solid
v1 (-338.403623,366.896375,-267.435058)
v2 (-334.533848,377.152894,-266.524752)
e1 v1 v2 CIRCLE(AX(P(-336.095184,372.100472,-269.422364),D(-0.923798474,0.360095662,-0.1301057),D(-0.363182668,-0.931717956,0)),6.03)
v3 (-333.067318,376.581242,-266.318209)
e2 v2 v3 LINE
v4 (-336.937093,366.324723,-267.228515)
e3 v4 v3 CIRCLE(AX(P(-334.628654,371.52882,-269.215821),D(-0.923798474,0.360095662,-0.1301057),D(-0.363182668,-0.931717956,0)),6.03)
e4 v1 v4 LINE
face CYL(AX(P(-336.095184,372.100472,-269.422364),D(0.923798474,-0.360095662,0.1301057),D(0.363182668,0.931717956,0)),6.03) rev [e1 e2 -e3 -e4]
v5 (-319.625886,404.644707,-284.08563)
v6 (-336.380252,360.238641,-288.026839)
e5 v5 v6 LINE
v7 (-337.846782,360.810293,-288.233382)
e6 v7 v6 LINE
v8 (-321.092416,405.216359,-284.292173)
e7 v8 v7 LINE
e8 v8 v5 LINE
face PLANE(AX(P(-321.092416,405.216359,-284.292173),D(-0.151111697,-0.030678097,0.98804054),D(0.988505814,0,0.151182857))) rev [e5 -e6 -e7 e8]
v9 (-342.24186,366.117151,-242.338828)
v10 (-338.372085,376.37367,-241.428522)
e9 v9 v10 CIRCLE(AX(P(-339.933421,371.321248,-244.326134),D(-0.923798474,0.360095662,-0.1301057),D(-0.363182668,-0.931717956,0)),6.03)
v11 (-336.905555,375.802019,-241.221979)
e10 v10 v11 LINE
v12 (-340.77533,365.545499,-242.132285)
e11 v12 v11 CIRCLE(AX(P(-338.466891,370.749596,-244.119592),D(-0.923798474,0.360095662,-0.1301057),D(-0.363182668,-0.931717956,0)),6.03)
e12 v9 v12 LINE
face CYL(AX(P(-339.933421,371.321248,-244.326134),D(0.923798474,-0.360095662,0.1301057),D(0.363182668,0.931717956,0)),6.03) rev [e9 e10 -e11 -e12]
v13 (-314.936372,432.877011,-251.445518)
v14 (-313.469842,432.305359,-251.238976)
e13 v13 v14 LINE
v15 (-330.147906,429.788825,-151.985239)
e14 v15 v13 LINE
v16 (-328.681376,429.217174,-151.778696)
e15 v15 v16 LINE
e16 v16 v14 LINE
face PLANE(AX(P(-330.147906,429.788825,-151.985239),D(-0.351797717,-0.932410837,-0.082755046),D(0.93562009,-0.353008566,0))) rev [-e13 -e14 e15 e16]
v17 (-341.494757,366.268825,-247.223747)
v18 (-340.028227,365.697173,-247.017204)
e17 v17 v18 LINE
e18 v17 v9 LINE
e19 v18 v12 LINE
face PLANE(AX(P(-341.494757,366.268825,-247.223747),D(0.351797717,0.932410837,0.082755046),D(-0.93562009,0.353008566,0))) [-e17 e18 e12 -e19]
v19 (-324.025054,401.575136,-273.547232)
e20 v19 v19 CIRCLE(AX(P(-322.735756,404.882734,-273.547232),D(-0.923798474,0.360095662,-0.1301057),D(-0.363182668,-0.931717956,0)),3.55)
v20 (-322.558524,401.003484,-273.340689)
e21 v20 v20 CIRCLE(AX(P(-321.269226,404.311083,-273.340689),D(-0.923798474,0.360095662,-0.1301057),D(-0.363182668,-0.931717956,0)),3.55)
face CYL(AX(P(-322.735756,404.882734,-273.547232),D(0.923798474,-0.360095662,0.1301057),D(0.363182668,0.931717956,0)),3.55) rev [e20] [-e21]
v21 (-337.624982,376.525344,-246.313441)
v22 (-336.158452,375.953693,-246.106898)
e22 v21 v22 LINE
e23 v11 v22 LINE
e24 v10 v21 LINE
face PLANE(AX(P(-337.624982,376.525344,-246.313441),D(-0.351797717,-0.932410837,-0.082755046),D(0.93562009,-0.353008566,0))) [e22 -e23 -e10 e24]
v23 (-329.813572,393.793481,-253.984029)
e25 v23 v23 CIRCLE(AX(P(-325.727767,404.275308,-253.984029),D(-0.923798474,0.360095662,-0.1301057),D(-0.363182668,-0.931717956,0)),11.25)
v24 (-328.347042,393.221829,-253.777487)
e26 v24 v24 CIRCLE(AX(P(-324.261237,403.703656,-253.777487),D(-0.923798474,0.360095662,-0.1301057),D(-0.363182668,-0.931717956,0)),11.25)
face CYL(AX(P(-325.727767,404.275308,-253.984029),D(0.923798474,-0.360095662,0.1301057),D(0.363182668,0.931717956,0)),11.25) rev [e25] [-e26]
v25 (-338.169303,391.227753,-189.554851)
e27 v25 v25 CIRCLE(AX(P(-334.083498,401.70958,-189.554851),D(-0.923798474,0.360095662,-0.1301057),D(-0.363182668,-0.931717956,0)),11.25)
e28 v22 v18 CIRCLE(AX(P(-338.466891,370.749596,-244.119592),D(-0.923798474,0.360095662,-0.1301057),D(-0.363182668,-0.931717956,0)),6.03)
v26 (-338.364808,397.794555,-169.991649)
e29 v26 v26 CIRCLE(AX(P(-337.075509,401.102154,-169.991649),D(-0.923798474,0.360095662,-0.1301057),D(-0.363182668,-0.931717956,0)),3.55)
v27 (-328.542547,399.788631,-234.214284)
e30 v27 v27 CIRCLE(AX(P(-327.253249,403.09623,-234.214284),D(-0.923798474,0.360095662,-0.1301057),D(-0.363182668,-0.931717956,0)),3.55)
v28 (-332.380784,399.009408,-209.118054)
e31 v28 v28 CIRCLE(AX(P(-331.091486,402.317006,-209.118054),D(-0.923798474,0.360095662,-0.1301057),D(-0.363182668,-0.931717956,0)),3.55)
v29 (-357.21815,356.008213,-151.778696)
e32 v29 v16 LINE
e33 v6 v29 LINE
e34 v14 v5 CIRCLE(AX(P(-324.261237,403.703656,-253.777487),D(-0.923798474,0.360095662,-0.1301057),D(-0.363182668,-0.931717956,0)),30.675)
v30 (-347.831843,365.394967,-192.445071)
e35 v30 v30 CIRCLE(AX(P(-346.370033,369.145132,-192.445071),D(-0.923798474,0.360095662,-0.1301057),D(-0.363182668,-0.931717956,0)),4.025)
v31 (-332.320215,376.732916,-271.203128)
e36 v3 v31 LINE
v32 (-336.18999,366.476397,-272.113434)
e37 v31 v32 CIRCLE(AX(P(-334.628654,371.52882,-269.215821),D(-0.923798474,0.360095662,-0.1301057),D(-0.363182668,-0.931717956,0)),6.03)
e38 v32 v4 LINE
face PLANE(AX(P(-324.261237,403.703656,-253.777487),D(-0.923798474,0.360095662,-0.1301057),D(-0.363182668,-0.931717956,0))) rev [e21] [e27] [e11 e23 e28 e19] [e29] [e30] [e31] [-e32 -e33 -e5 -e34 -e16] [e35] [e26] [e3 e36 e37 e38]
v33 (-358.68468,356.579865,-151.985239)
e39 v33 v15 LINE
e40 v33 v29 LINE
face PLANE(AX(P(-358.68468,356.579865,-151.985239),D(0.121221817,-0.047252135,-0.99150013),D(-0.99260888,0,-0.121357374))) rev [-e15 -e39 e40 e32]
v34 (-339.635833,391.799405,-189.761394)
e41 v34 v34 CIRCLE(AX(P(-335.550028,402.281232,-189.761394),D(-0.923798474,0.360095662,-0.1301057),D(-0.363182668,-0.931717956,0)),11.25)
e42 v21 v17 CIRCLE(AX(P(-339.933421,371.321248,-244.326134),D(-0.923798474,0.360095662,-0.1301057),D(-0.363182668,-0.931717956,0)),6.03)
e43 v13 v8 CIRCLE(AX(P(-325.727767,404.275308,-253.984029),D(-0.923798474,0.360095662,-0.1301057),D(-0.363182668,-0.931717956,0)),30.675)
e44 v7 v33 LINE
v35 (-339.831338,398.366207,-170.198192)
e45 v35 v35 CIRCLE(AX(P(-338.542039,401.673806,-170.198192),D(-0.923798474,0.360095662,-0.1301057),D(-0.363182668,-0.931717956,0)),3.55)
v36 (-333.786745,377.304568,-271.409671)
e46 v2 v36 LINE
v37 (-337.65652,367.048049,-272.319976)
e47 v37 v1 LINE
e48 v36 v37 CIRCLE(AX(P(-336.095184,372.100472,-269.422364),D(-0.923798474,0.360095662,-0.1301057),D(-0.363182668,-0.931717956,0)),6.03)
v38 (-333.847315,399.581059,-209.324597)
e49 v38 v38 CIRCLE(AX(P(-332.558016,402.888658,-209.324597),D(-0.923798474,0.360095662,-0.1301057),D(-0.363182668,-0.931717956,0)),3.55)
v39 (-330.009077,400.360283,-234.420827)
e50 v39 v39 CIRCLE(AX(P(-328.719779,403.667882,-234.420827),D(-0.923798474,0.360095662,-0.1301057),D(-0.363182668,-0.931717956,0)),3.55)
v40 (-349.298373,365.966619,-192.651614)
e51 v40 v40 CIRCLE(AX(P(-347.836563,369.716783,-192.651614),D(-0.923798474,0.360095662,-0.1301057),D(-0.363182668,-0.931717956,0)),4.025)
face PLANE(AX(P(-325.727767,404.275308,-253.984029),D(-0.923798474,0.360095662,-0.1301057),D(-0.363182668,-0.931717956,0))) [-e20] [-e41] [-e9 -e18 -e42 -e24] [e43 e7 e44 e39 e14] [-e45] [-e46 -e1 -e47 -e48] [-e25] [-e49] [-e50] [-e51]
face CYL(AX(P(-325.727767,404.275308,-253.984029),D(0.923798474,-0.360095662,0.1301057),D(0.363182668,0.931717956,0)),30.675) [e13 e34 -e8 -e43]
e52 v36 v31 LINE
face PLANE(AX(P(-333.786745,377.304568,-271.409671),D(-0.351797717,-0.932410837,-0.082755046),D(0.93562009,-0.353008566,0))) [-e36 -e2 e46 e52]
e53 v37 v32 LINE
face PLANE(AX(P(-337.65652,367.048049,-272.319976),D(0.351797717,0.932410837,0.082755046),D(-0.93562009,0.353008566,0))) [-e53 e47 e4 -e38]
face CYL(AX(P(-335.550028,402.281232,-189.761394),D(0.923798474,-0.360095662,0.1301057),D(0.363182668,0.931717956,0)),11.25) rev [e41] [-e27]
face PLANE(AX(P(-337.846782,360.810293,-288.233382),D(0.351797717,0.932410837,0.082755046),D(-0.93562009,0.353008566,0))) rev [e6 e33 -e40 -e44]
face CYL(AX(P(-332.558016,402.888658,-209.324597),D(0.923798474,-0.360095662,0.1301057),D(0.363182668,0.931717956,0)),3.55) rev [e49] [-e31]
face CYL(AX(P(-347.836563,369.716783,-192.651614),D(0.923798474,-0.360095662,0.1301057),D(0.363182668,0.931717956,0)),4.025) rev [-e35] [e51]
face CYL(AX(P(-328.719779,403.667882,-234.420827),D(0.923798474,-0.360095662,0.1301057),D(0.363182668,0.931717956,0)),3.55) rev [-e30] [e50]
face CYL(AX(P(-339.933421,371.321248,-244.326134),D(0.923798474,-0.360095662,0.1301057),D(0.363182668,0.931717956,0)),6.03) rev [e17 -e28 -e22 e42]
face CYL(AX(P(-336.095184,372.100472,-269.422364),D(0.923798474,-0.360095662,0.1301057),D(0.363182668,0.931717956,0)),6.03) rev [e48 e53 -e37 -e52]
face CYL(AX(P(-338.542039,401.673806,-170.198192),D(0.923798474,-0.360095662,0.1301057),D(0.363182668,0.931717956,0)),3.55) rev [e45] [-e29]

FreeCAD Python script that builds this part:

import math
import FreeCAD as App
import Part
import Sketcher

V = App.Vector
Q = App.Units.Quantity

doc = App.newDocument("Part")
body = doc.addObject("PartDesign::Body", "Body")

# Sketch on an angled plane
sketch1 = doc.addObject("Sketcher::SketchObject", "Sketch")
body.addObject(sketch1)
sketch1.Placement = App.Placement(V(-441.521969, 172.104794, -62.182961), App.Rotation(V(-0.121221817, 0.047252135, 0.99150013), V(0.363182668, 0.931717956, 0), V(-0.923798474, 0.360095662, -0.1301057), "ZXY"))
sketch1.addGeometry([
    Part.LineSegment(V(-227.8, 213.5, 0), V(-90.4, 202, 0)),  # 0
    Part.LineSegment(V(-90.4, 202, 0), V(-90.4, 280.5, 0)),  # 1
    Part.LineSegment(V(-90.4, 280.5, 0), V(-190.7, 288.9, 0)),  # 2
    Part.ArcOfCircle(Part.Circle(V(-193.2, 258.4, 0), V(0, 0, 1), 30.7), math.radians(85), math.radians(175)),  # 3
    Part.LineSegment(V(-223.8, 260.9, 0), V(-227.8, 213.5, 0)),  # 4
    Part.ArcOfCircle(Part.Circle(V(-208.8, 224.6, 0), V(0, 0, 1), 6), math.radians(109), math.radians(241)),  # 5
    Part.LineSegment(V(-210.8, 230.3, 0), V(-205.9, 229.9, 0)),  # 6
    Part.ArcOfCircle(Part.Circle(V(-208.8, 224.6, 0), V(0, 0, 1), 6), math.radians(-71), math.radians(61)),  # 7
    Part.LineSegment(V(-206.8, 218.9, 0), V(-211.7, 219.4, 0)),  # 8
    Part.ArcOfCircle(Part.Circle(V(-183.5, 222.5, 0), V(0, 0, 1), 6), math.radians(109), math.radians(241)),  # 9
    Part.LineSegment(V(-185.5, 228.2, 0), V(-180.6, 227.8, 0)),  # 10
    Part.ArcOfCircle(Part.Circle(V(-183.5, 222.5, 0), V(0, 0, 1), 6), math.radians(-71), math.radians(61)),  # 11
    Part.LineSegment(V(-181.5, 216.8, 0), V(-186.4, 217.2, 0)),  # 12
    Part.Circle(V(-131.4, 218.1, 0), V(0, 0, 1), 4),  # 13
    Part.Circle(V(-213, 260, 0), V(0, 0, 1), 3.5),  # 14
    Part.Circle(V(-193.2, 258.4, 0), V(0, 0, 1), 11.2),  # 15
    Part.Circle(V(-173.5, 256.7, 0), V(0, 0, 1), 3.5),  # 16
    Part.Circle(V(-148.2, 254.6, 0), V(0, 0, 1), 3.5),  # 17
    Part.Circle(V(-128.5, 252.9, 0), V(0, 0, 1), 11.2),  # 18
    Part.Circle(V(-108.7, 251.3, 0), V(0, 0, 1), 3.5),  # 19
], False)
sketch1.addConstraint([
    Sketcher.Constraint("Coincident", 0, 2, 1, 1),
    Sketcher.Constraint("Coincident", 1, 2, 2, 1),
    Sketcher.Constraint("Tangent", 2, 2, 3, 1),
    Sketcher.Constraint("Tangent", 3, 2, 4, 1),
    Sketcher.Constraint("Coincident", 4, 2, 0, 1),
    Sketcher.Constraint("Coincident", 5, 1, 6, 1),
    Sketcher.Constraint("Coincident", 6, 2, 7, 2),
    Sketcher.Constraint("Coincident", 7, 1, 8, 1),
    Sketcher.Constraint("Coincident", 8, 2, 5, 2),
    Sketcher.Constraint("Coincident", 9, 1, 10, 1),
    Sketcher.Constraint("Coincident", 10, 2, 11, 2),
    Sketcher.Constraint("Coincident", 11, 1, 12, 1),
    Sketcher.Constraint("Coincident", 12, 2, 9, 2),
    Sketcher.Constraint("Vertical", 1),
    Sketcher.Constraint("Coincident", 7, 3, 5, 3),
    Sketcher.Constraint("Coincident", 11, 3, 9, 3),
    Sketcher.Constraint("Coincident", 15, 3, 3, 3),
    Sketcher.Constraint("Equal", 5, 7),
    Sketcher.Constraint("Equal", 7, 9),
    Sketcher.Constraint("Equal", 9, 11),
    Sketcher.Constraint("Equal", 14, 16),
    Sketcher.Constraint("Equal", 16, 17),
    Sketcher.Constraint("Equal", 15, 18),
    Sketcher.Constraint("Equal", 17, 19),
    Sketcher.Constraint("Parallel", 0, 2),
    Sketcher.Constraint("Perpendicular", 2, 4),
    Sketcher.Constraint("Perpendicular", 4, 6),
    Sketcher.Constraint("Parallel", 6, 8),
    Sketcher.Constraint("Parallel", 8, 10),
    Sketcher.Constraint("Parallel", 10, 12),
    Sketcher.Constraint("Equal", 6, 8),
    Sketcher.Constraint("Equal", 8, 10),
    Sketcher.Constraint("Equal", 10, 12),
    Sketcher.Constraint("Diameter", 14, Q("7.1 mm")),
    Sketcher.Constraint("Diameter", 15, Q("22.5 mm")),
    Sketcher.Constraint("Diameter", 13, Q("8.05 mm")),
    Sketcher.Constraint("Radius", 5, Q("6.03 mm")),
    Sketcher.Constraint("Radius", 3, Q("30.675 mm")),
    Sketcher.Constraint("DistanceX", 18, 3, 0, 2, Q("38.1 mm")),
    Sketcher.Constraint("Distance", 4, Q("47.625 mm")),
    Sketcher.Constraint("DistanceX", 5, 3, -1, 1, Q("208.807699 mm")),
    Sketcher.Constraint("DistanceX", 3, 3, 13, 3, Q("61.858202 mm")),
    Sketcher.Constraint("DistanceX", 16, 3, 19, 3, Q("64.773199 mm")),
    Sketcher.Constraint("Distance", 0, Q("137.89732 mm")),
    Sketcher.Constraint("Distance", 2, Q("100.664168 mm")),
    Sketcher.Constraint("DistanceY", -1, 1, 14, 3, Q("260.024481 mm")),
    Sketcher.Constraint("DistanceX", 17, 3, -1, 1, Q("148.194729 mm")),
    Sketcher.Constraint("DistanceY", -1, 1, 17, 3, Q("254.59929 mm")),
    Sketcher.Constraint("DistanceY", -1, 1, 1, 2, Q("280.537969 mm")),
    Sketcher.Constraint("DistanceX", 4, 2, -1, 1, Q("227.779978 mm")),
    Sketcher.Constraint("DistanceX", 5, 1, -1, 1, Q("210.812042 mm")),
    Sketcher.Constraint("DistanceY", -1, 1, 5, 1, Q("230.315881 mm")),
    Sketcher.Constraint("DistanceX", 9, 1, -1, 1, Q("185.500669 mm")),
    Sketcher.Constraint("DistanceY", -1, 1, 10, 2, Q("227.78323 mm")),
    Sketcher.Constraint("DistanceY", 13, 3, 3, 3, Q("40.228329 mm")),
    Sketcher.Constraint("DistanceX", 14, 3, 5, 3, Q("4.160229 mm")),
    Sketcher.Constraint("DistanceY", 11, 3, 16, 3, Q("34.21054 mm")),
    Sketcher.Constraint("DistanceY", 13, 3, 18, 3, Q("34.803138 mm")),
    Sketcher.Constraint("DistanceX", 13, 3, 19, 3, Q("22.64591 mm")),
    Sketcher.Constraint("DistanceY", 13, 3, 19, 3, Q("33.150541 mm")),
])
pad1 = doc.addObject("PartDesign::Pad", "Pad")
body.addObject(pad1)
pad1.Profile = sketch1
pad1.Length = 1.5875

doc.recompute()
